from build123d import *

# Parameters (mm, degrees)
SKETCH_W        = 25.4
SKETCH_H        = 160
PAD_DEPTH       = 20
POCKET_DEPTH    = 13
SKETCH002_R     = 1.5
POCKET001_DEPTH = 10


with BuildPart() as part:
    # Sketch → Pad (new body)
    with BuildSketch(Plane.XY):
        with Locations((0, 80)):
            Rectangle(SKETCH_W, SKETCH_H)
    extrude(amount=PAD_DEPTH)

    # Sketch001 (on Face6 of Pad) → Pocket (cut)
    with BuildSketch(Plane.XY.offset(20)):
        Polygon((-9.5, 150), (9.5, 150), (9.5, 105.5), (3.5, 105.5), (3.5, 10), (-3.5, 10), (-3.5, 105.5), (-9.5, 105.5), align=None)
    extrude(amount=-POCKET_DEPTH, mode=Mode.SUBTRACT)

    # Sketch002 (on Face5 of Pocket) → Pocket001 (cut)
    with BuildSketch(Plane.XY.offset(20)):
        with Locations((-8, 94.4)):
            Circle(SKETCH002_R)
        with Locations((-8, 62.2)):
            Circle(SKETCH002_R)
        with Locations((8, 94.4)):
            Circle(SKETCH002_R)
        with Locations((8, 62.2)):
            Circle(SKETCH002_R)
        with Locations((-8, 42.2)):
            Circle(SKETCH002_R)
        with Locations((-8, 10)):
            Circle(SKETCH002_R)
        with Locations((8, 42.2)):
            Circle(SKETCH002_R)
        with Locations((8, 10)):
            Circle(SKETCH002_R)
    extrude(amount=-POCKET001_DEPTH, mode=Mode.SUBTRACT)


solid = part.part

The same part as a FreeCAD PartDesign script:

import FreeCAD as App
import Part
import Sketcher
from FreeCAD import Vector
Q = App.Units.Quantity


def add_polygon(sketch, points):
    """Adds a closed chain of lines whose ends are joined by coincident constraints."""
    first, n = sketch.GeometryCount, len(points)
    for a, b in zip(points, points[1:] + points[:1]):
        sketch.addGeometry(Part.LineSegment(App.Vector(*a, 0), App.Vector(*b, 0)), False)
    for i in range(n):
        sketch.addConstraint(Sketcher.Constraint("Coincident", first + i, 2, first + (i + 1) % n, 1))

doc = App.newDocument("Part")
body = doc.addObject("PartDesign::Body", "Body")

sketch1 = doc.addObject("Sketcher::SketchObject", "Sketch")
body.addObject(sketch1)
sketch1.AttachmentSupport = (doc.XY_Plane, [""])
sketch1.MapMode = "FlatFace"
add_polygon(sketch1, [(-12.7, 160), (-12.7, 0), (12.7, 0), (12.7, 160)])
sketch1.addConstraint([
    Sketcher.Constraint("Vertical", 0),
    Sketcher.Constraint("Horizontal", 1),
    Sketcher.Constraint("Vertical", 2),
    Sketcher.Constraint("Horizontal", 3),
    Sketcher.Constraint("Symmetric", 0, 2, 1, 2, -1, 1),
    Sketcher.Constraint("DistanceY", 0, 2, 0, 1, Q("160 mm")),
    Sketcher.Constraint("DistanceX", 1, 1, 1, 2, Q("25.4 mm")),
])
pad1 = doc.addObject("PartDesign::Pad", "Pad")
body.addObject(pad1)
pad1.Profile = sketch1
pad1.Length = 20

sketch2 = doc.addObject("Sketcher::SketchObject", "Sketch001")
body.addObject(sketch2)
sketch2.AttachmentSupport = (doc.XY_Plane, [""])
sketch2.MapMode = "FlatFace"
sketch2.AttachmentOffset = App.Placement(Vector(0, 0, 20), App.Rotation())
add_polygon(sketch2, [(9.5, 150), (-9.5, 150), (-9.5, 105.5), (-3.5, 105.5), (-3.5, 10), (3.5, 10), (3.5, 105.5), (9.5, 105.5)])
sketch2.addConstraint([
    Sketcher.Constraint("Horizontal", 0),
    Sketcher.Constraint("Vertical", 1),
    Sketcher.Constraint("Horizontal", 2),
    Sketcher.Constraint("Vertical", 3),
    Sketcher.Constraint("Horizontal", 4),
    Sketcher.Constraint("Vertical", 5),
    Sketcher.Constraint("Horizontal", 6),
    Sketcher.Constraint("Vertical", 7),
    Sketcher.Constraint("Symmetric", 2, 2, 5, 2, -2),
    Sketcher.Constraint("Equal", 2, 6),
    Sketcher.Constraint("DistanceX", 0, 2, 0, 1, Q("19 mm")),
    Sketcher.Constraint("DistanceX", 2, 1, 2, 2, Q("6 mm")),
    Sketcher.Constraint("DistanceY", 1, 2, 1, 1, Q("44.5 mm")),
    Sketcher.Constraint("DistanceY", 3, 2, 3, 1, Q("95.5 mm")),
    Sketcher.Constraint("DistanceY", -1, 1, 0, 2, Q("150 mm")),
])
pocket1 = doc.addObject("PartDesign::Pocket", "Pocket")
body.addObject(pocket1)
pocket1.Profile = sketch2
pocket1.Length = 13

sketch3 = doc.addObject("Sketcher::SketchObject", "Sketch002")
body.addObject(sketch3)
sketch3.AttachmentSupport = (doc.XY_Plane, [""])
sketch3.MapMode = "FlatFace"
sketch3.AttachmentOffset = App.Placement(Vector(0, 0, 20), App.Rotation())
sketch3.addGeometry([
    Part.Circle(Vector(-8, 94.4, 0), Vector(0, 0, 1), 1.5),
    Part.Circle(Vector(-8, 62.2, 0), Vector(0, 0, 1), 1.5),
    Part.Circle(Vector(8, 94.4, 0), Vector(0, 0, 1), 1.5),
    Part.Circle(Vector(8, 62.2, 0), Vector(0, 0, 1), 1.5),
    Part.Circle(Vector(-8, 42.2, 0), Vector(0, 0, 1), 1.5),
    Part.Circle(Vector(-8, 10, 0), Vector(0, 0, 1), 1.5),
    Part.Circle(Vector(8, 42.2, 0), Vector(0, 0, 1), 1.5),
    Part.Circle(Vector(8, 10, 0), Vector(0, 0, 1), 1.5),
], False)
sketch3.addConstraint([
    Sketcher.Constraint("Equal", 0, 1),
    Sketcher.Constraint("Equal", 1, 2),
    Sketcher.Constraint("Equal", 2, 3),
    Sketcher.Constraint("Equal", 3, 4),
    Sketcher.Constraint("Equal", 4, 5),
    Sketcher.Constraint("Equal", 5, 6),
    Sketcher.Constraint("Equal", 6, 7),
    Sketcher.Constraint("Symmetric", 0, 3, 2, 3, -2),
    Sketcher.Constraint("Symmetric", 1, 3, 3, 3, -2),
    Sketcher.Constraint("Symmetric", 4, 3, 6, 3, -2),
    Sketcher.Constraint("Symmetric", 5, 3, 7, 3, -2),
    Sketcher.Constraint("Vertical", 0, 3, 1, 3),
    Sketcher.Constraint("Vertical", 1, 3, 4, 3),
    Sketcher.Constraint("Vertical", 4, 3, 5, 3),
    Sketcher.Constraint("Diameter", 0, Q("3 mm")),
    Sketcher.Constraint("DistanceX", 0, 3, -1, 1, Q("8 mm")),
    Sketcher.Constraint("DistanceY", -1, 1, 5, 3, Q("10 mm")),
    Sketcher.Constraint("DistanceY", 4, 3, 1, 3, Q("20 mm")),
    Sketcher.Constraint("DistanceY", -1, 1, 0, 3, Q("94.4 mm")),
    Sketcher.Constraint("DistanceY", -1, 1, 1, 3, Q("62.2 mm")),
])
pocket2 = doc.addObject("PartDesign::Pocket", "Pocket001")
body.addObject(pocket2)
pocket2.Profile = sketch3
pocket2.Length = 10

doc.recompute()
